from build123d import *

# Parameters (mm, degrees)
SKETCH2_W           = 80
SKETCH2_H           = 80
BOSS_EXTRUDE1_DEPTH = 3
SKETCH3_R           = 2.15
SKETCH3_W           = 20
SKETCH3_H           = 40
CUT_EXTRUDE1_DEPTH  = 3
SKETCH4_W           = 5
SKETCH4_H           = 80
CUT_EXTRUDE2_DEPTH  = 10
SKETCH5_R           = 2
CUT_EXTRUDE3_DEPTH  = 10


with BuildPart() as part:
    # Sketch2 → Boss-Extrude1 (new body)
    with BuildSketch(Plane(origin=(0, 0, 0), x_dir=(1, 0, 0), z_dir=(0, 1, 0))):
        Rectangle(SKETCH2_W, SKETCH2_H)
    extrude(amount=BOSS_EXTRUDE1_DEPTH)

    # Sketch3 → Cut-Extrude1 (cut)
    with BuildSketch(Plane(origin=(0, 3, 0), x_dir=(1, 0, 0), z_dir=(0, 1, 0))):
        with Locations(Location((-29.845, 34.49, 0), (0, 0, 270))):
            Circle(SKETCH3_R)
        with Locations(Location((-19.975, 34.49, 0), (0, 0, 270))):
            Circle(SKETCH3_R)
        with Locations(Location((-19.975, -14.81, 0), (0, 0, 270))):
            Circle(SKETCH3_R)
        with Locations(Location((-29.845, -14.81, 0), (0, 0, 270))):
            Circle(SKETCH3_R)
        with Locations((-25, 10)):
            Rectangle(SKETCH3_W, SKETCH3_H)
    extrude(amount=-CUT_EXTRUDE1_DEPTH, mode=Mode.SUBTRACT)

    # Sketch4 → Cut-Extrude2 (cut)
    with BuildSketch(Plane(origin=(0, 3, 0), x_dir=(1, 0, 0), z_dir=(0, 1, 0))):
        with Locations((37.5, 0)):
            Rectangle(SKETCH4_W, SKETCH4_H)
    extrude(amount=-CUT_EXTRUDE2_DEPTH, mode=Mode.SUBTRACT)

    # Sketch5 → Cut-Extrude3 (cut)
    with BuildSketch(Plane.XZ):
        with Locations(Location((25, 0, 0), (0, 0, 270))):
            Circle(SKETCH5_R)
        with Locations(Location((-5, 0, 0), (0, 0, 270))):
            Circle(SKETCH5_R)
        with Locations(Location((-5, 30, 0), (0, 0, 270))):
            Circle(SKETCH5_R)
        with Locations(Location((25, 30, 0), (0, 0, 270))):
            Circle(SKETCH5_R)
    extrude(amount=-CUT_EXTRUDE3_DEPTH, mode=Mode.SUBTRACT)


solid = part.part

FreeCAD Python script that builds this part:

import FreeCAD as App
import Part
import Sketcher
Q = App.Units.Quantity


def add_polygon(sketch, points):
    """Adds a closed chain of lines whose ends are joined by coincident constraints."""
    first, n = sketch.GeometryCount, len(points)
    for a, b in zip(points, points[1:] + points[:1]):
        sketch.addGeometry(Part.LineSegment(App.Vector(*a, 0), App.Vector(*b, 0)), False)
    for i in range(n):
        sketch.addConstraint(Sketcher.Constraint("Coincident", first + i, 2, first + (i + 1) % n, 1))

doc = App.newDocument("Part")
body = doc.addObject("PartDesign::Body", "Body")

sketch1 = body.newObject("Sketcher::SketchObject", "Sketch")
sketch1.AttachmentSupport = (doc.getObject("XZ_Plane"), [""])
sketch1.MapMode = "FlatFace"
add_polygon(sketch1, [(-40, -40), (-40, 40), (40, 40), (40, -40)])
sketch1.addConstraint(Sketcher.Constraint("Vertical", 0))
sketch1.addConstraint(Sketcher.Constraint("Horizontal", 1))
sketch1.addConstraint(Sketcher.Constraint("Vertical", 2))
sketch1.addConstraint(Sketcher.Constraint("Horizontal", 3))
sketch1.addConstraint(Sketcher.Constraint("Symmetric", 0, 2, 2, 2, -1, 1))
sketch1.addConstraint(Sketcher.Constraint("Equal", 3, 0))
sketch1.addConstraint(Sketcher.Constraint("DistanceX", 1, 1, 1, 2, Q("80 mm")))
pad1 = body.newObject("PartDesign::Pad", "Pad")
pad1.Profile = sketch1
pad1.Length = 3
pad1.Reversed = True

sketch2 = body.newObject("Sketcher::SketchObject", "Sketch001")
sketch2.AttachmentSupport = (doc.getObject("XZ_Plane"), [""])
sketch2.MapMode = "FlatFace"
sketch2.AttachmentOffset = App.Placement(App.Vector(0, 0, -3), App.Rotation())
sketch2.addGeometry(Part.Circle(App.Vector(-29.8, -34.5, 0), App.Vector(0, 0, 1), 2.1), False)
sketch2.addGeometry(Part.Circle(App.Vector(-20, -34.5, 0), App.Vector(0, 0, 1), 2.1), False)
sketch2.addGeometry(Part.Circle(App.Vector(-20, 14.8, 0), App.Vector(0, 0, 1), 2.1), False)
sketch2.addGeometry(Part.Circle(App.Vector(-29.8, 14.8, 0), App.Vector(0, 0, 1), 2.1), False)
add_polygon(sketch2, [(-35, -30), (-35, 10), (-15, 10), (-15, -30)])
sketch2.addConstraint(Sketcher.Constraint("Vertical", 4))
sketch2.addConstraint(Sketcher.Constraint("Horizontal", 5))
sketch2.addConstraint(Sketcher.Constraint("Vertical", 6))
sketch2.addConstraint(Sketcher.Constraint("Horizontal", 7))
sketch2.addConstraint(Sketcher.Constraint("Equal", 0, 1))
sketch2.addConstraint(Sketcher.Constraint("Equal", 1, 2))
sketch2.addConstraint(Sketcher.Constraint("Equal", 2, 3))
sketch2.addConstraint(Sketcher.Constraint("Horizontal", 0, 3, 1, 3))
sketch2.addConstraint(Sketcher.Constraint("Horizontal", 2, 3, 3, 3))
sketch2.addConstraint(Sketcher.Constraint("Vertical", 1, 3, 2, 3))
sketch2.addConstraint(Sketcher.Constraint("Vertical", 0, 3, 3, 3))
sketch2.addConstraint(Sketcher.Constraint("Diameter", 0, Q("4.3 mm")))
sketch2.addConstraint(Sketcher.Constraint("DistanceX", 5, 1, 5, 2, Q("20 mm")))
sketch2.addConstraint(Sketcher.Constraint("DistanceY", 4, 1, 4, 2, Q("40 mm")))
sketch2.addConstraint(Sketcher.Constraint("DistanceX", 4, 2, -1, 1, Q("35 mm")))
sketch2.addConstraint(Sketcher.Constraint("DistanceY", -1, 1, 4, 2, Q("10 mm")))
sketch2.addConstraint(Sketcher.Constraint("DistanceY", 1, 3, 2, 3, Q("49.3 mm")))
sketch2.addConstraint(Sketcher.Constraint("DistanceY", 0, 3, -1, 1, Q("34.49 mm")))
sketch2.addConstraint(Sketcher.Constraint("DistanceX", 0, 3, 1, 3, Q("9.87 mm")))
sketch2.addConstraint(Sketcher.Constraint("DistanceX", 0, 3, -1, 1, Q("29.845 mm")))
pocket1 = body.newObject("PartDesign::Pocket", "Pocket")
pocket1.Profile = sketch2
pocket1.Length = 3
pocket1.Reversed = True

sketch3 = body.newObject("Sketcher::SketchObject", "Sketch002")
sketch3.AttachmentSupport = (doc.getObject("XZ_Plane"), [""])
sketch3.MapMode = "FlatFace"
sketch3.AttachmentOffset = App.Placement(App.Vector(0, 0, -3), App.Rotation())
add_polygon(sketch3, [(35, -40), (35, 40), (40, 40), (40, -40)])
sketch3.addConstraint(Sketcher.Constraint("Vertical", 0))
sketch3.addConstraint(Sketcher.Constraint("Horizontal", 1))
sketch3.addConstraint(Sketcher.Constraint("Vertical", 2))
sketch3.addConstraint(Sketcher.Constraint("Horizontal", 3))
sketch3.addConstraint(Sketcher.Constraint("DistanceX", 1, 1, 1, 2, Q("5 mm")))
sketch3.addConstraint(Sketcher.Constraint("DistanceY", 0, 1, 0, 2, Q("80 mm")))
sketch3.addConstraint(Sketcher.Constraint("DistanceX", -1, 1, 0, 2, Q("35 mm")))
sketch3.addConstraint(Sketcher.Constraint("DistanceY", -1, 1, 0, 2, Q("40 mm")))
pocket2 = body.newObject("PartDesign::Pocket", "Pocket001")
pocket2.Profile = sketch3
pocket2.Length = 10
pocket2.Reversed = True

sketch4 = body.newObject("Sketcher::SketchObject", "Sketch003")
sketch4.AttachmentSupport = (doc.getObject("XZ_Plane"), [""])
sketch4.MapMode = "FlatFace"
sketch4.addGeometry(Part.Circle(App.Vector(25, 0, 0), App.Vector(0, 0, 1), 2), False)
sketch4.addGeometry(Part.Circle(App.Vector(-5, 0, 0), App.Vector(0, 0, 1), 2), False)
sketch4.addGeometry(Part.Circle(App.Vector(-5, 30, 0), App.Vector(0, 0, 1), 2), False)
sketch4.addGeometry(Part.Circle(App.Vector(25, 30, 0), App.Vector(0, 0, 1), 2), False)
sketch4.addConstraint(Sketcher.Constraint("Equal", 0, 1))
sketch4.addConstraint(Sketcher.Constraint("Equal", 1, 2))
sketch4.addConstraint(Sketcher.Constraint("Equal", 2, 3))
sketch4.addConstraint(Sketcher.Constraint("PointOnObject", 0, 3, -1))
sketch4.addConstraint(Sketcher.Constraint("PointOnObject", 1, 3, -1))
sketch4.addConstraint(Sketcher.Constraint("Horizontal", 2, 3, 3, 3))
sketch4.addConstraint(Sketcher.Constraint("Vertical", 1, 3, 2, 3))
sketch4.addConstraint(Sketcher.Constraint("Vertical", 0, 3, 3, 3))
sketch4.addConstraint(Sketcher.Constraint("Diameter", 0, Q("4 mm")))
sketch4.addConstraint(Sketcher.Constraint("DistanceX", -1, 1, 0, 3, Q("25 mm")))
sketch4.addConstraint(Sketcher.Constraint("DistanceX", 1, 3, -1, 1, Q("5 mm")))
sketch4.addConstraint(Sketcher.Constraint("DistanceY", -1, 1, 2, 3, Q("30 mm")))
pocket3 = body.newObject("PartDesign::Pocket", "Pocket002")
pocket3.Profile = sketch4
pocket3.Length = 10

doc.recompute()
